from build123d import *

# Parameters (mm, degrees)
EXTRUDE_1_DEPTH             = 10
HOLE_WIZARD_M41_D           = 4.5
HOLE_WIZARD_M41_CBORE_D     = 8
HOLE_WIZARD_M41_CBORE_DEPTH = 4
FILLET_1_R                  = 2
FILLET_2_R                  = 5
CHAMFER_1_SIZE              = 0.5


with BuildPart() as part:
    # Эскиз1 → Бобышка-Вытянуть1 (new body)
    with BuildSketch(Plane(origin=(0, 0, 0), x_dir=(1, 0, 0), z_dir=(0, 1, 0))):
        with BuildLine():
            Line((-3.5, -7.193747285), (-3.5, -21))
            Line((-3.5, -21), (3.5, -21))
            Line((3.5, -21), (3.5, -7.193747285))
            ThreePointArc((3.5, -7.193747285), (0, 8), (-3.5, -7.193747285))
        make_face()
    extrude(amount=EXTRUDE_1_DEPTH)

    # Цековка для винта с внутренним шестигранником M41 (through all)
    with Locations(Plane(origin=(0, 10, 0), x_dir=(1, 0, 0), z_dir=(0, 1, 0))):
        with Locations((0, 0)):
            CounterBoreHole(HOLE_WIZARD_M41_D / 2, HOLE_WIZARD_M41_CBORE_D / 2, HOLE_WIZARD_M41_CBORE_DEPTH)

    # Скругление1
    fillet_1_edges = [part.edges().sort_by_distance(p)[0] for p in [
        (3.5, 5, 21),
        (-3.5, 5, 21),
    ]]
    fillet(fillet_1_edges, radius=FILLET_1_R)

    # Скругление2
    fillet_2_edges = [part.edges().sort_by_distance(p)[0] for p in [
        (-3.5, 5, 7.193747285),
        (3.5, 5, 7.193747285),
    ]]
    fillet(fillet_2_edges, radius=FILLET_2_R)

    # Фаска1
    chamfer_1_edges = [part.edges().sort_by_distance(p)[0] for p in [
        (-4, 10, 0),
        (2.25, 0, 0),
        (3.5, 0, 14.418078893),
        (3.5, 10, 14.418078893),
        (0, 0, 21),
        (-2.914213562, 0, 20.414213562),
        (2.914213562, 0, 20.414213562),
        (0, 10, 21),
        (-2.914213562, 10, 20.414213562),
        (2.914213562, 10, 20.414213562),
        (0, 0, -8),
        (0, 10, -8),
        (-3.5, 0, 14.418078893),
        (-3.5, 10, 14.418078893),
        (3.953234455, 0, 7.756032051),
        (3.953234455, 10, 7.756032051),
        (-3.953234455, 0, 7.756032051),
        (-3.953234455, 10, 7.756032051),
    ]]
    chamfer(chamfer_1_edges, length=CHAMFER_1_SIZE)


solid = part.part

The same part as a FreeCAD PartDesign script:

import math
import FreeCAD as App
import Part
import Sketcher
from FreeCAD import Vector


def edges_at(feature, points):
    """Names of the edges that pass closest to the given points."""
    edges = feature.Shape.Edges
    near = lambda p: min(range(len(edges)), key=lambda i: edges[i].distToShape(Part.Vertex(*p))[0])
    return sorted({f"Edge{near(p) + 1}" for p in points})

doc = App.newDocument("Part")
body = doc.addObject("PartDesign::Body", "Body")

# Sketch on XZ plane
sketch1 = body.newObject("Sketcher::SketchObject", "Sketch")
sketch1.AttachmentSupport = (doc.getObject("XZ_Plane"), [""])
sketch1.MapMode = "FlatFace"
sketch1.addGeometry([
    Part.LineSegment(Vector(-3.5, 7.193747, 0), Vector(-3.5, 21, 0)),
    Part.LineSegment(Vector(-3.5, 21, 0), Vector(3.5, 21, 0)),
    Part.LineSegment(Vector(3.5, 21, 0), Vector(3.5, 7.193747, 0)),
    Part.ArcOfCircle(Part.Circle(Vector(0, 0, 0), Vector(0, 0, 1), 8), math.radians(115.94448), math.radians(424.05552)),
], False)
sketch1.addConstraint([
    Sketcher.Constraint("Coincident", 0, 2, 1, 1),
    Sketcher.Constraint("Coincident", 1, 2, 2, 1),
    Sketcher.Constraint("Coincident", 2, 2, 3, 2),
    Sketcher.Constraint("Coincident", 3, 1, 0, 1),
    Sketcher.Constraint("Vertical", 0),
    Sketcher.Constraint("Horizontal", 1),
    Sketcher.Constraint("Vertical", 2),
    Sketcher.Constraint("Coincident", 3, 3, -1, 1),
    Sketcher.Constraint("Horizontal", 2, 2, 3, 1),
    Sketcher.Constraint("Radius", 3, 8.0),
    Sketcher.Constraint("DistanceX", 1, 1, 1, 2, 7.0),
    Sketcher.Constraint("DistanceY", -1, 1, 0, 2, 21.0),
])
pad1 = body.newObject("PartDesign::Pad", "Pad")
pad1.Profile = sketch1
pad1.Length = 10
pad1.Reversed = True

# Sketch on XZ plane
sketch2 = body.newObject("Sketcher::SketchObject", "Sketch001")
sketch2.AttachmentSupport = (doc.getObject("XZ_Plane"), [""])
sketch2.MapMode = "FlatFace"
sketch2.AttachmentOffset = App.Placement(Vector(0, 0, -10), App.Rotation())
sketch2.addGeometry(Part.Circle(Vector(0, 0, 0), Vector(0, 0, 1), 2.25), False)
sketch2.addConstraint([
    Sketcher.Constraint("Coincident", 0, 3, -1, 1),
    Sketcher.Constraint("Diameter", 0, 4.5),
])
doc.recompute()
hole = body.newObject("PartDesign::Hole", "Hole")
hole.Profile = sketch2
hole.ThreadType = "None"
hole.Diameter = 4.5
hole.DepthType = "ThroughAll"
hole.HoleCutType = "Counterbore"
hole.HoleCutDiameter = 8
hole.HoleCutDepth = 4
hole.Reversed = True
doc.recompute()

fillet = body.newObject("PartDesign::Fillet", "Fillet")
fillet.Base = (hole, edges_at(hole, [(3.5, 5, 21), (-3.5, 5, 21)]))
fillet.Radius = 2
doc.recompute()

fillet2 = body.newObject("PartDesign::Fillet", "Fillet001")
fillet2.Base = (fillet, edges_at(fillet, [(-3.5, 5, 7.194), (3.5, 5, 7.194)]))
fillet2.Radius = 5
doc.recompute()

chamfer = body.newObject("PartDesign::Chamfer", "Chamfer")
chamfer.Base = (fillet2, edges_at(fillet2, [
    (-4, 10, 0),
    (2.25, 0, 0),
    (3.5, 0, 14.418),
    (3.5, 10, 14.418),
    (0, 0, 21),
    (-2.914, 0, 20.414),
    (2.914, 0, 20.414),
    (0, 10, 21),
    (-2.914, 10, 20.414),
    (2.914, 10, 20.414),
    (0, 0, -8),
    (0, 10, -8),
    (-3.5, 0, 14.418),
    (-3.5, 10, 14.418),
    (3.953, 0, 7.756),
    (3.953, 10, 7.756),
    (-3.953, 0, 7.756),
    (-3.953, 10, 7.756),
]))
chamfer.Size = 0.5

doc.recompute()
